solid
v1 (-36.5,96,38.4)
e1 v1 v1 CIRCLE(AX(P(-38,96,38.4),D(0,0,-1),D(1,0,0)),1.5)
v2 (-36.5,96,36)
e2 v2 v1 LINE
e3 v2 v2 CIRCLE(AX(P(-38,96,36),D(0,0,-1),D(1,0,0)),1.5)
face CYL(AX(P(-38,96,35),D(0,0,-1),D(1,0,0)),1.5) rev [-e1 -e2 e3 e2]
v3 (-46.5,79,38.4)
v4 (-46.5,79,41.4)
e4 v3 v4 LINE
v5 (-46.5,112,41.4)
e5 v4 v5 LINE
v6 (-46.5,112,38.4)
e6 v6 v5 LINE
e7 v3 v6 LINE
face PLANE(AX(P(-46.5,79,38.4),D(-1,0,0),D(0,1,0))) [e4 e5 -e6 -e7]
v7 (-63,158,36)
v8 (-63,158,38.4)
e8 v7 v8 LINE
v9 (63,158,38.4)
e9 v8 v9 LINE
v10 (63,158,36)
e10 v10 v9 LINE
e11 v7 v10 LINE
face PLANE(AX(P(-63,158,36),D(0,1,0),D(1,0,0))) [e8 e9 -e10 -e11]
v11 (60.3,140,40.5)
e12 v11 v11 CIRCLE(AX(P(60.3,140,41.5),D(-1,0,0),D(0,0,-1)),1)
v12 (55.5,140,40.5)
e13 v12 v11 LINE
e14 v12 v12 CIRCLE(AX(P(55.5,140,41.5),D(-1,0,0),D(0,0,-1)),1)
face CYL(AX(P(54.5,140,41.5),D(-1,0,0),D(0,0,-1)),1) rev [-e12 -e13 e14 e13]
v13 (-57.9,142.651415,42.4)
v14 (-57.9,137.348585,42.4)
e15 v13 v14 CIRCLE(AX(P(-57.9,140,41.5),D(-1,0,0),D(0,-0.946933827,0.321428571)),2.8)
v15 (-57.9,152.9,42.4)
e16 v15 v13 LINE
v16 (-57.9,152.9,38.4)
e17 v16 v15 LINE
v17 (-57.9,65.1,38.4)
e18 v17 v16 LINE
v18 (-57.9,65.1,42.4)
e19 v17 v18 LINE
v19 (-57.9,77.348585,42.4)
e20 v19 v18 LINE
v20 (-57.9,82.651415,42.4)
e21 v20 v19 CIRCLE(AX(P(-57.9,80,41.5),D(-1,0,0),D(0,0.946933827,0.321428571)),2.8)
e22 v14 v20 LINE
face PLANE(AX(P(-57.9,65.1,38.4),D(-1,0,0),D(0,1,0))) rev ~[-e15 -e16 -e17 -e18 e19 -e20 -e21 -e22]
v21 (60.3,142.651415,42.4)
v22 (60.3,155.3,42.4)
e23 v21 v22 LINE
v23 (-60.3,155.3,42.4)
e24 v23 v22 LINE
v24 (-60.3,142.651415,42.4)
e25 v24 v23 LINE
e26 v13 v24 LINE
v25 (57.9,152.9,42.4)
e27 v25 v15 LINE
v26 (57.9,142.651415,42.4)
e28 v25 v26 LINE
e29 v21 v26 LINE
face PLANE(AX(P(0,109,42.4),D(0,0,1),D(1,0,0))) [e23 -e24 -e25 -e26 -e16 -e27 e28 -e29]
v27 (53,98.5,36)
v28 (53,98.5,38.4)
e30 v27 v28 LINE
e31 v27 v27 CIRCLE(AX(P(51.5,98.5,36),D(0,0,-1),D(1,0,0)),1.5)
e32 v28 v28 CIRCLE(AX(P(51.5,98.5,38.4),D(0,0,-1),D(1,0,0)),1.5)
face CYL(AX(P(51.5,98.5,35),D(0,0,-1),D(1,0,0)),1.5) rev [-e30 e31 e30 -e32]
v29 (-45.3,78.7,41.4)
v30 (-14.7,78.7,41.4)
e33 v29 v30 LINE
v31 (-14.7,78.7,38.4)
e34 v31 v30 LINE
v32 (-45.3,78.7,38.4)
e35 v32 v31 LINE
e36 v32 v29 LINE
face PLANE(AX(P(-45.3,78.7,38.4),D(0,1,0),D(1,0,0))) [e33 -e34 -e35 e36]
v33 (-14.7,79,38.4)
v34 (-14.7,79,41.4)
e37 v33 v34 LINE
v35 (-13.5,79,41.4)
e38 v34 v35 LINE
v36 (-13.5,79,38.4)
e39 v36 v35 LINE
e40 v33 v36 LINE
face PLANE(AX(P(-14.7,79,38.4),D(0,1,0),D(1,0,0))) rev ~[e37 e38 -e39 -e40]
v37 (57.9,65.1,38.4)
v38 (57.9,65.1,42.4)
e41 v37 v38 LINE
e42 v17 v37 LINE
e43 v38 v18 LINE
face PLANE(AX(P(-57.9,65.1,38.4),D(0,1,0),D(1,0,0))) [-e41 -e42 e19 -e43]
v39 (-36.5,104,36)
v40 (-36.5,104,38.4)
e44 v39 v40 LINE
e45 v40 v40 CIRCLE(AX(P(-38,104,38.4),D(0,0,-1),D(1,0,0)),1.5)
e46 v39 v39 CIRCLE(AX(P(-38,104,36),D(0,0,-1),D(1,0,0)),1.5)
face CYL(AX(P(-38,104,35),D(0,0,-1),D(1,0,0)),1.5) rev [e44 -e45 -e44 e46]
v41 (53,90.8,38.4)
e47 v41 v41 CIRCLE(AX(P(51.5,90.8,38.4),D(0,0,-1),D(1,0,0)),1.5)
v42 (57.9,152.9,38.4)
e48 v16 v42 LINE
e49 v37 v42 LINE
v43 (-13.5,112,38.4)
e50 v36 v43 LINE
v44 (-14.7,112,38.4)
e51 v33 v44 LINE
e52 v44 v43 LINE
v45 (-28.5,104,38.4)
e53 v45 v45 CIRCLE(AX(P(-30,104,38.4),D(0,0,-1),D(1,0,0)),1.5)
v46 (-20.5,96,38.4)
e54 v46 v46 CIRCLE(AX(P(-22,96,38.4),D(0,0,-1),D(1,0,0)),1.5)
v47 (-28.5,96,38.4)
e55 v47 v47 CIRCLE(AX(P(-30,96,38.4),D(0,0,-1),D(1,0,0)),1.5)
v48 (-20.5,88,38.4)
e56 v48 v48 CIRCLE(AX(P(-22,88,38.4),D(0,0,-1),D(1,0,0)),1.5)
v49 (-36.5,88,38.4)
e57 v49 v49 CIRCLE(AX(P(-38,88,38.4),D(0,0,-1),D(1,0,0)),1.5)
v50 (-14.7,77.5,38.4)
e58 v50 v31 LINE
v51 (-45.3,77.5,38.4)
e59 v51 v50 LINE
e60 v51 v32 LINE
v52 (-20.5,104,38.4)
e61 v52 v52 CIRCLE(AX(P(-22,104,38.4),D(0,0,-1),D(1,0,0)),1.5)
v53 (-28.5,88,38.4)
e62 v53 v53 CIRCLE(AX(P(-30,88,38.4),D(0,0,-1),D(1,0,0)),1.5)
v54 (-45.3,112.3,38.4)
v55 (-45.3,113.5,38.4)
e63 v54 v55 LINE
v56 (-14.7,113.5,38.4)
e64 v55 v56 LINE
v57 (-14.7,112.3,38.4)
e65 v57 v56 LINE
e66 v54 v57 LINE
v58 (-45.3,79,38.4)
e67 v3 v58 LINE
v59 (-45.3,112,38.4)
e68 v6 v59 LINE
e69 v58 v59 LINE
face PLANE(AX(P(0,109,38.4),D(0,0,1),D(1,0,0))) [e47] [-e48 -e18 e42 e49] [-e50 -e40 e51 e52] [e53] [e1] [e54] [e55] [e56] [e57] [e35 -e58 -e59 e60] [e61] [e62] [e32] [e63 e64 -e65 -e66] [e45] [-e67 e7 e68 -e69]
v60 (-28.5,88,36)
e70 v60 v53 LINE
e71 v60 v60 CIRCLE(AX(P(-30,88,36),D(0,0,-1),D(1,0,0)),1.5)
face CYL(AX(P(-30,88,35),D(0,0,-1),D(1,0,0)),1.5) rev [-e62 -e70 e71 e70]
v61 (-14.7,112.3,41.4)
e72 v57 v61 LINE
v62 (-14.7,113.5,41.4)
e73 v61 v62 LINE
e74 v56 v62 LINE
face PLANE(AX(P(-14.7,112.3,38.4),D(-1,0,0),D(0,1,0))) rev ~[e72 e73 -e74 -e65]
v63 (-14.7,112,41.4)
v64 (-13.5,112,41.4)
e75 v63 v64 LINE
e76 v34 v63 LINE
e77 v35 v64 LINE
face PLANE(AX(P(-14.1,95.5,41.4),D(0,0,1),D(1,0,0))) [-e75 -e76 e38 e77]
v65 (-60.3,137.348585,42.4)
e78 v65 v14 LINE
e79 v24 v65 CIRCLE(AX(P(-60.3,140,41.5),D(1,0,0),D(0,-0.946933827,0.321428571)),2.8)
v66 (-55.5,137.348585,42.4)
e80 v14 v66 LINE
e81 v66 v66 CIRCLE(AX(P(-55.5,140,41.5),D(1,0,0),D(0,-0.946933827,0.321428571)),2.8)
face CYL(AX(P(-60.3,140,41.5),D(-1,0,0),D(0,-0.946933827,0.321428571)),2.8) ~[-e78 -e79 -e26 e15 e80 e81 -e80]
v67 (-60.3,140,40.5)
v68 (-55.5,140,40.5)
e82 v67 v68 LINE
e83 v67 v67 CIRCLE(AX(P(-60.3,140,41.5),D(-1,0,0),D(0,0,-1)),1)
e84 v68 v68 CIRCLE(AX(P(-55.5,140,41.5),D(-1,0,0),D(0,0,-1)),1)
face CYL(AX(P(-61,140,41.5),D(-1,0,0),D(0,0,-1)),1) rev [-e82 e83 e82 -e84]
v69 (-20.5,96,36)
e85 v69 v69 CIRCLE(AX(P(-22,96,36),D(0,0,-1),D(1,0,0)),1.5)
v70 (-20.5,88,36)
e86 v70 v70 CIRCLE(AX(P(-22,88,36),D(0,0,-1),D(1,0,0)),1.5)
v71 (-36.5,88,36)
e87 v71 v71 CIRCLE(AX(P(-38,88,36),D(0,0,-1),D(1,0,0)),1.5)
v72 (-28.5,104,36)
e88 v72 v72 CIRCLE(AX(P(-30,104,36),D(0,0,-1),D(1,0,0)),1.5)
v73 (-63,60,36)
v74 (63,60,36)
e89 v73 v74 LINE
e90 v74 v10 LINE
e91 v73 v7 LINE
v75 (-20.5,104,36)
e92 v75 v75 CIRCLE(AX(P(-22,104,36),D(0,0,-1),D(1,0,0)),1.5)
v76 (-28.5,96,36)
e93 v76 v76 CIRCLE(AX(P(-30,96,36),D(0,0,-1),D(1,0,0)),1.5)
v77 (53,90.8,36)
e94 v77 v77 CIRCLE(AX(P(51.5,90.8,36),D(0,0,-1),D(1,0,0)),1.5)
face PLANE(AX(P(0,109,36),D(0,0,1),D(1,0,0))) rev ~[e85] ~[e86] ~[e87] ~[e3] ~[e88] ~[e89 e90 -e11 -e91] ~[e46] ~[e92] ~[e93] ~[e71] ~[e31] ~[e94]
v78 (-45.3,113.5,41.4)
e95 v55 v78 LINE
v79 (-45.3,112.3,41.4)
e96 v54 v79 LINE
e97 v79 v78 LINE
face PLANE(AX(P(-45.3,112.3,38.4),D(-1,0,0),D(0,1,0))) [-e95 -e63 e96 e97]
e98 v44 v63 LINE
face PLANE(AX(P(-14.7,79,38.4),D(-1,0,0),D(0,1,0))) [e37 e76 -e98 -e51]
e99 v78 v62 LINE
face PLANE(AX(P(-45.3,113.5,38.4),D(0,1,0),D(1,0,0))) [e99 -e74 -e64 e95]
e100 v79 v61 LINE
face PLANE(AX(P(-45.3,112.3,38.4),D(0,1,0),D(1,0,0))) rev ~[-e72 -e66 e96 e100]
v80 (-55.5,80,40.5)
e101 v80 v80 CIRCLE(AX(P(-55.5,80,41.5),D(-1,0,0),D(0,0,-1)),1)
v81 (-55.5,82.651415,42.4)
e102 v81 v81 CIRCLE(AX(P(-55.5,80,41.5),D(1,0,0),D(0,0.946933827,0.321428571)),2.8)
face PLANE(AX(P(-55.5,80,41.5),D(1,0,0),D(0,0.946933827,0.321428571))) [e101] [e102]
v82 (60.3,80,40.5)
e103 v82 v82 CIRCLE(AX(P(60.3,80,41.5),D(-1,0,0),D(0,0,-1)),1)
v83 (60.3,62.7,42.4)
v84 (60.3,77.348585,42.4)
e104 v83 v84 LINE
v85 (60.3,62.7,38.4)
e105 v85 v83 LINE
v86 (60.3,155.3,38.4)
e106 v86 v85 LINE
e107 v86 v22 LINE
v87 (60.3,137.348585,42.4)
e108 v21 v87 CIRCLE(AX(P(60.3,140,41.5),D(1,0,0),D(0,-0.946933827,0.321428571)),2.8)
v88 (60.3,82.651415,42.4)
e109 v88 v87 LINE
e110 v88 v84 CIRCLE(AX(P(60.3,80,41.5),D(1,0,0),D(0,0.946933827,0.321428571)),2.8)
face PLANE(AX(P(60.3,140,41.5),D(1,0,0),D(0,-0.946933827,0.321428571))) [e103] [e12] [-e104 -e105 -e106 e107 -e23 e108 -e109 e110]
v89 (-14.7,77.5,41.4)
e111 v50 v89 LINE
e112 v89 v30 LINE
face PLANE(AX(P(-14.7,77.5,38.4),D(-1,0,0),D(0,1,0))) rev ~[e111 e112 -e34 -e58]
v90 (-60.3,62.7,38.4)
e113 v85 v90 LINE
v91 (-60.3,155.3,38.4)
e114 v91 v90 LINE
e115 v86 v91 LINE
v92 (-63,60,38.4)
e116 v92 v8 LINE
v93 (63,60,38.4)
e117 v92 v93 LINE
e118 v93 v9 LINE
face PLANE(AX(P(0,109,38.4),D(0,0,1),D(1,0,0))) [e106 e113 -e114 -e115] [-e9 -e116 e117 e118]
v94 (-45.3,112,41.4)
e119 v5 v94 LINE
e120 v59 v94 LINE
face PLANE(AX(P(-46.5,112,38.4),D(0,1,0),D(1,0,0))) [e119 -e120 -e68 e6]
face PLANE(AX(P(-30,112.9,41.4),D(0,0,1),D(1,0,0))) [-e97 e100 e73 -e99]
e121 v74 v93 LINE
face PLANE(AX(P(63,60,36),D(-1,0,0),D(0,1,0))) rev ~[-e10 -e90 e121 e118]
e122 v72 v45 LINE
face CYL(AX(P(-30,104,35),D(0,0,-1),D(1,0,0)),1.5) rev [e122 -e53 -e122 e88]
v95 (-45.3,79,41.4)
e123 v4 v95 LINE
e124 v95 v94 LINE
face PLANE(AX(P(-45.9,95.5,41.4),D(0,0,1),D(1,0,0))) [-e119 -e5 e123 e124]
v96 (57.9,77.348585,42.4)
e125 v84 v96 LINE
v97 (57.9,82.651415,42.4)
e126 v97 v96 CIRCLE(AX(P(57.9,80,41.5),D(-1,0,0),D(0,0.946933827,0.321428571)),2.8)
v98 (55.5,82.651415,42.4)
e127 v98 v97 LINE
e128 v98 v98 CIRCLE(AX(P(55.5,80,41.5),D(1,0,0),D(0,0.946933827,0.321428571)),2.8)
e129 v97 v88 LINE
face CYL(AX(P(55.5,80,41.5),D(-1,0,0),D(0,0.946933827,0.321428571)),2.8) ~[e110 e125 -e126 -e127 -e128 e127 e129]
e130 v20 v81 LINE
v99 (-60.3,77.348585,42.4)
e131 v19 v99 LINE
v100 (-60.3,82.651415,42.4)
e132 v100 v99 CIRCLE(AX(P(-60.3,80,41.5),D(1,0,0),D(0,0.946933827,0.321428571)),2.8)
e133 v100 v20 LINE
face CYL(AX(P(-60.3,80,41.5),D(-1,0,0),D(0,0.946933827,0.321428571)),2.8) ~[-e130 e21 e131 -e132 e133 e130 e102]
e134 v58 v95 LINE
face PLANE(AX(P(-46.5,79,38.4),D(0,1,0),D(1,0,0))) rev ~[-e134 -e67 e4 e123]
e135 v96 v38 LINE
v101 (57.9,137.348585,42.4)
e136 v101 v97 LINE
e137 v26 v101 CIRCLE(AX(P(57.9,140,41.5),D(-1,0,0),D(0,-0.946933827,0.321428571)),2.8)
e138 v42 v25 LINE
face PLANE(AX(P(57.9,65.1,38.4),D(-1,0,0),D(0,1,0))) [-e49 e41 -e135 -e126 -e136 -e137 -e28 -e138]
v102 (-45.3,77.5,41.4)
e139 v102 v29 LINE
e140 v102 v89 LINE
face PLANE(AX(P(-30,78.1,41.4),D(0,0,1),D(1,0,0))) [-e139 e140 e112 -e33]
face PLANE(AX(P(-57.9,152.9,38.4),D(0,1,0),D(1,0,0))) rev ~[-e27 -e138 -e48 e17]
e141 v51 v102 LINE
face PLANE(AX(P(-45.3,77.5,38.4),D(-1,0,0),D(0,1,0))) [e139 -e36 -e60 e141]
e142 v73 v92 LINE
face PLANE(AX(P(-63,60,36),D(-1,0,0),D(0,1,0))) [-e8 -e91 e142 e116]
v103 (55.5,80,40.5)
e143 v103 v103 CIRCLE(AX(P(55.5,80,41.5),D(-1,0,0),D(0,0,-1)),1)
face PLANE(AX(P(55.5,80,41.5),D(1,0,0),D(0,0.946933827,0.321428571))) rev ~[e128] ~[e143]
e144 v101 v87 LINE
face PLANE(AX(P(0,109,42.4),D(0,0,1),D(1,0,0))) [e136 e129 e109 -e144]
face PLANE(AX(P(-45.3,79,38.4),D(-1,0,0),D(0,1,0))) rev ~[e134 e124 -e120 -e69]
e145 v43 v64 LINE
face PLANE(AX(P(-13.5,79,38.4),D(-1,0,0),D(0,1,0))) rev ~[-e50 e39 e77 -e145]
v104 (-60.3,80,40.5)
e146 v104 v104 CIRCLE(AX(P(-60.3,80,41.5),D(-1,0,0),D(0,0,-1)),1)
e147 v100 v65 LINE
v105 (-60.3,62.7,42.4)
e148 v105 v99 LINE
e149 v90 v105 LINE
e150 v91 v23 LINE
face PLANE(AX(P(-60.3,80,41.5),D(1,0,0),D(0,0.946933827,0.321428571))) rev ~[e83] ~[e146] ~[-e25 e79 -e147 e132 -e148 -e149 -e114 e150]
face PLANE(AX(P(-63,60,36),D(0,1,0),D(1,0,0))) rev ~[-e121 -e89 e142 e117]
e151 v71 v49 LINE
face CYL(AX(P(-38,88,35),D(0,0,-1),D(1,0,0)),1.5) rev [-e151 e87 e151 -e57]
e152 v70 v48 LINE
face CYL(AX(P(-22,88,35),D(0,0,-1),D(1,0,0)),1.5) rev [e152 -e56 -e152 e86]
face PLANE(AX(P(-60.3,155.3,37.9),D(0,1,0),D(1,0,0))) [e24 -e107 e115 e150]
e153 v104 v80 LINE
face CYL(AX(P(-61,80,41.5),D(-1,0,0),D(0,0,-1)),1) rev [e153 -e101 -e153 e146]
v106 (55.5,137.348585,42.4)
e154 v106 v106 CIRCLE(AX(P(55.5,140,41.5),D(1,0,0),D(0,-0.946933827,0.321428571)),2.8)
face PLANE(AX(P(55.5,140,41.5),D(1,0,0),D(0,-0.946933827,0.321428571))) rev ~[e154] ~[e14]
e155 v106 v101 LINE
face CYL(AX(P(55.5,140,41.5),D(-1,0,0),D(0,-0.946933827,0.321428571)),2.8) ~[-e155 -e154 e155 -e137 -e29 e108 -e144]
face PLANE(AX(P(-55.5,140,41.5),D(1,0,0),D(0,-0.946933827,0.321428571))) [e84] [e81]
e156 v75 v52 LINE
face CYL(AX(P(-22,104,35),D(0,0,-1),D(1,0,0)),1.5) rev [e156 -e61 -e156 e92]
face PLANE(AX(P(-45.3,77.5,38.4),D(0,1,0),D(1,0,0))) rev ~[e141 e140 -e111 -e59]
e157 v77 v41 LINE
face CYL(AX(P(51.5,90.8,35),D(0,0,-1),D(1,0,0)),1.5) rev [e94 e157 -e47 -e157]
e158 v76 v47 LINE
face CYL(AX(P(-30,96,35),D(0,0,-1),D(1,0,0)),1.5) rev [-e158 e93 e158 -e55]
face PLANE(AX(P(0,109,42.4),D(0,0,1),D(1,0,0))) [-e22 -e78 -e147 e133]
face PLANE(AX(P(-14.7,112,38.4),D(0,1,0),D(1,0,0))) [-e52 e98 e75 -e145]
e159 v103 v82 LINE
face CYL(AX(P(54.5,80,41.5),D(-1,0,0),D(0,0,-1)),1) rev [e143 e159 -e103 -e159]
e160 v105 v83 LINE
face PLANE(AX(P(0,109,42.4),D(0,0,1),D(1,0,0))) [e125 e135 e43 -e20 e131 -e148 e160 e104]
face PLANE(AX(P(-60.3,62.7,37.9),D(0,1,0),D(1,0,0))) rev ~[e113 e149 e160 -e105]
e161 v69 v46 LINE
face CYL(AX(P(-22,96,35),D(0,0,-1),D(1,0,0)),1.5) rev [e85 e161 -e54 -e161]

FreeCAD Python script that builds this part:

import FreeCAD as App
import Part
import Sketcher

V = App.Vector

doc = App.newDocument("Part")
body = doc.addObject("PartDesign::Body", "Body")

# Sketch on XY plane
sketch1 = body.newObject("Sketcher::SketchObject", "Sketch")
sketch1.AttachmentSupport = (doc.getObject("XY_Plane"), [""])
sketch1.MapMode = "FlatFace"
sketch1.AttachmentOffset = App.Placement(V(0, 0, 36), App.Rotation())
sketch1.addGeometry([
    Part.LineSegment(V(-63, 158, 0), V(-63, 60, 0)),
    Part.LineSegment(V(-63, 60, 0), V(63, 60, 0)),
    Part.LineSegment(V(63, 60, 0), V(63, 158, 0)),
    Part.LineSegment(V(63, 158, 0), V(-63, 158, 0)),
], False)
sketch1.addConstraint([
    Sketcher.Constraint("Coincident", 0, 2, 1, 1),
    Sketcher.Constraint("Coincident", 1, 2, 2, 1),
    Sketcher.Constraint("Coincident", 2, 2, 3, 1),
    Sketcher.Constraint("Coincident", 3, 2, 0, 1),
    Sketcher.Constraint("Vertical", 0),
    Sketcher.Constraint("Horizontal", 1),
    Sketcher.Constraint("Vertical", 2),
    Sketcher.Constraint("Horizontal", 3),
    Sketcher.Constraint("DistanceX", 1, 1, 1, 2, 126.0),
    Sketcher.Constraint("DistanceY", 0, 2, 0, 1, 98.0),
    Sketcher.Constraint("DistanceX", 0, 2, -1, 1, 63.0),
    Sketcher.Constraint("DistanceY", -1, 1, 0, 2, 60.0),
])
pad1 = body.newObject("PartDesign::Pad", "Pad")
pad1.Profile = sketch1
pad1.Length = 2.4

# Sketch on XY plane
sketch2 = body.newObject("Sketcher::SketchObject", "Sketch001")
sketch2.AttachmentSupport = (doc.getObject("XY_Plane"), [""])
sketch2.MapMode = "FlatFace"
sketch2.AttachmentOffset = App.Placement(V(0, 0, 37.9), App.Rotation())
sketch2.addGeometry([
    Part.LineSegment(V(-60.3, 155.3, 0), V(-60.3, 62.7, 0)),
    Part.LineSegment(V(-60.3, 62.7, 0), V(60.3, 62.7, 0)),
    Part.LineSegment(V(60.3, 62.7, 0), V(60.3, 155.3, 0)),
    Part.LineSegment(V(60.3, 155.3, 0), V(-60.3, 155.3, 0)),
], False)
sketch2.addConstraint([
    Sketcher.Constraint("Coincident", 0, 2, 1, 1),
    Sketcher.Constraint("Coincident", 1, 2, 2, 1),
    Sketcher.Constraint("Coincident", 2, 2, 3, 1),
    Sketcher.Constraint("Coincident", 3, 2, 0, 1),
    Sketcher.Constraint("Vertical", 0),
    Sketcher.Constraint("Horizontal", 1),
    Sketcher.Constraint("Vertical", 2),
    Sketcher.Constraint("Horizontal", 3),
    Sketcher.Constraint("DistanceX", 1, 1, 1, 2, 120.6),
    Sketcher.Constraint("DistanceY", 0, 2, 0, 1, 92.6),
    Sketcher.Constraint("DistanceX", 0, 2, -1, 1, 60.3),
    Sketcher.Constraint("DistanceY", -1, 1, 0, 2, 62.7),
])
pad2 = body.newObject("PartDesign::Pad", "Pad001")
pad2.Profile = sketch2
pad2.Length = 4.5
body2 = doc.addObject("PartDesign::Body", "Body001")

# Sketch on XY plane
sketch3 = body2.newObject("Sketcher::SketchObject", "Sketch002")
sketch3.AttachmentSupport = (doc.getObject("XY_Plane001"), [""])
sketch3.MapMode = "FlatFace"
sketch3.AttachmentOffset = App.Placement(V(0, 0, 38.4), App.Rotation())
sketch3.addGeometry([
    Part.LineSegment(V(-57.9, 152.9, 0), V(-57.9, 65.1, 0)),
    Part.LineSegment(V(-57.9, 65.1, 0), V(57.9, 65.1, 0)),
    Part.LineSegment(V(57.9, 65.1, 0), V(57.9, 152.9, 0)),
    Part.LineSegment(V(57.9, 152.9, 0), V(-57.9, 152.9, 0)),
], False)
sketch3.addConstraint([
    Sketcher.Constraint("Coincident", 0, 2, 1, 1),
    Sketcher.Constraint("Coincident", 1, 2, 2, 1),
    Sketcher.Constraint("Coincident", 2, 2, 3, 1),
    Sketcher.Constraint("Coincident", 3, 2, 0, 1),
    Sketcher.Constraint("Vertical", 0),
    Sketcher.Constraint("Horizontal", 1),
    Sketcher.Constraint("Vertical", 2),
    Sketcher.Constraint("Horizontal", 3),
    Sketcher.Constraint("DistanceX", 1, 1, 1, 2, 115.8),
    Sketcher.Constraint("DistanceY", 0, 2, 0, 1, 87.8),
    Sketcher.Constraint("DistanceX", 0, 2, -1, 1, 57.9),
    Sketcher.Constraint("DistanceY", -1, 1, 0, 2, 65.1),
])
pad3 = body2.newObject("PartDesign::Pad", "Pad002")
pad3.Profile = sketch3
pad3.Length = 5
doc.recompute()

boolean = body.newObject("PartDesign::Boolean", "Boolean")
boolean.Type = "Cut"
boolean.addObjects([body2])

# Sketch on YZ plane
sketch4 = body.newObject("Sketcher::SketchObject", "Sketch003")
sketch4.AttachmentSupport = (doc.getObject("YZ_Plane"), [""])
sketch4.MapMode = "FlatFace"
sketch4.AttachmentOffset = App.Placement(V(0, 0, -60.3), App.Rotation())
sketch4.addGeometry(Part.Circle(V(80, 41.5, 0), V(0, 0, 1), 2.8), False)
sketch4.addConstraint([
    Sketcher.Constraint("Diameter", 0, 5.6),
    Sketcher.Constraint("DistanceX", -1, 1, 0, 3, 80.0),
    Sketcher.Constraint("DistanceY", -1, 1, 0, 3, 41.5),
])
pad4 = body.newObject("PartDesign::Pad", "Pad003")
pad4.Profile = sketch4
pad4.Length = 4.8
body3 = doc.addObject("PartDesign::Body", "Body002")

# Sketch on YZ plane
sketch5 = body3.newObject("Sketcher::SketchObject", "Sketch004")
sketch5.AttachmentSupport = (doc.getObject("YZ_Plane002"), [""])
sketch5.MapMode = "FlatFace"
sketch5.AttachmentOffset = App.Placement(V(0, 0, -61), App.Rotation())
sketch5.addGeometry(Part.Circle(V(80, 41.5, 0), V(0, 0, 1), 1), False)
sketch5.addConstraint([
    Sketcher.Constraint("Diameter", 0, 2.0),
    Sketcher.Constraint("DistanceX", -1, 1, 0, 3, 80.0),
    Sketcher.Constraint("DistanceY", -1, 1, 0, 3, 41.5),
])
pad5 = body3.newObject("PartDesign::Pad", "Pad004")
pad5.Profile = sketch5
pad5.Length = 6.5
doc.recompute()

boolean2 = body.newObject("PartDesign::Boolean", "Boolean001")
boolean2.Type = "Cut"
boolean2.addObjects([body3])

# Sketch on YZ plane
sketch6 = body.newObject("Sketcher::SketchObject", "Sketch005")
sketch6.AttachmentSupport = (doc.getObject("YZ_Plane"), [""])
sketch6.MapMode = "FlatFace"
sketch6.AttachmentOffset = App.Placement(V(0, 0, -60.3), App.Rotation())
sketch6.addGeometry(Part.Circle(V(140, 41.5, 0), V(0, 0, 1), 2.8), False)
sketch6.addConstraint([
    Sketcher.Constraint("Diameter", 0, 5.6),
    Sketcher.Constraint("DistanceX", -1, 1, 0, 3, 140.0),
    Sketcher.Constraint("DistanceY", -1, 1, 0, 3, 41.5),
])
pad6 = body.newObject("PartDesign::Pad", "Pad005")
pad6.Profile = sketch6
pad6.Length = 4.8
body4 = doc.addObject("PartDesign::Body", "Body003")

# Sketch on YZ plane
sketch7 = body4.newObject("Sketcher::SketchObject", "Sketch006")
sketch7.AttachmentSupport = (doc.getObject("YZ_Plane003"), [""])
sketch7.MapMode = "FlatFace"
sketch7.AttachmentOffset = App.Placement(V(0, 0, -61), App.Rotation())
sketch7.addGeometry(Part.Circle(V(140, 41.5, 0), V(0, 0, 1), 1), False)
sketch7.addConstraint([
    Sketcher.Constraint("Diameter", 0, 2.0),
    Sketcher.Constraint("DistanceX", -1, 1, 0, 3, 140.0),
    Sketcher.Constraint("DistanceY", -1, 1, 0, 3, 41.5),
])
pad7 = body4.newObject("PartDesign::Pad", "Pad006")
pad7.Profile = sketch7
pad7.Length = 6.5
doc.recompute()

boolean3 = body.newObject("PartDesign::Boolean", "Boolean002")
boolean3.Type = "Cut"
boolean3.addObjects([body4])

# Sketch on YZ plane
sketch8 = body.newObject("Sketcher::SketchObject", "Sketch007")
sketch8.AttachmentSupport = (doc.getObject("YZ_Plane"), [""])
sketch8.MapMode = "FlatFace"
sketch8.AttachmentOffset = App.Placement(V(0, 0, 55.5), App.Rotation())
sketch8.addGeometry(Part.Circle(V(80, 41.5, 0), V(0, 0, 1), 2.8), False)
sketch8.addConstraint([
    Sketcher.Constraint("Diameter", 0, 5.6),
    Sketcher.Constraint("DistanceX", -1, 1, 0, 3, 80.0),
    Sketcher.Constraint("DistanceY", -1, 1, 0, 3, 41.5),
])
pad8 = body.newObject("PartDesign::Pad", "Pad007")
pad8.Profile = sketch8
pad8.Length = 4.8
body5 = doc.addObject("PartDesign::Body", "Body004")

# Sketch on YZ plane
sketch9 = body5.newObject("Sketcher::SketchObject", "Sketch008")
sketch9.AttachmentSupport = (doc.getObject("YZ_Plane004"), [""])
sketch9.MapMode = "FlatFace"
sketch9.AttachmentOffset = App.Placement(V(0, 0, 54.5), App.Rotation())
sketch9.addGeometry(Part.Circle(V(80, 41.5, 0), V(0, 0, 1), 1), False)
sketch9.addConstraint([
    Sketcher.Constraint("Diameter", 0, 2.0),
    Sketcher.Constraint("DistanceX", -1, 1, 0, 3, 80.0),
    Sketcher.Constraint("DistanceY", -1, 1, 0, 3, 41.5),
])
pad9 = body5.newObject("PartDesign::Pad", "Pad008")
pad9.Profile = sketch9
pad9.Length = 6.5
doc.recompute()

boolean4 = body.newObject("PartDesign::Boolean", "Boolean003")
boolean4.Type = "Cut"
boolean4.addObjects([body5])

# Sketch on YZ plane
sketch10 = body.newObject("Sketcher::SketchObject", "Sketch009")
sketch10.AttachmentSupport = (doc.getObject("YZ_Plane"), [""])
sketch10.MapMode = "FlatFace"
sketch10.AttachmentOffset = App.Placement(V(0, 0, 55.5), App.Rotation())
sketch10.addGeometry(Part.Circle(V(140, 41.5, 0), V(0, 0, 1), 2.8), False)
sketch10.addConstraint([
    Sketcher.Constraint("Diameter", 0, 5.6),
    Sketcher.Constraint("DistanceX", -1, 1, 0, 3, 140.0),
    Sketcher.Constraint("DistanceY", -1, 1, 0, 3, 41.5),
])
pad10 = body.newObject("PartDesign::Pad", "Pad009")
pad10.Profile = sketch10
pad10.Length = 4.8
body6 = doc.addObject("PartDesign::Body", "Body005")

# Sketch on YZ plane
sketch11 = body6.newObject("Sketcher::SketchObject", "Sketch010")
sketch11.AttachmentSupport = (doc.getObject("YZ_Plane005"), [""])
sketch11.MapMode = "FlatFace"
sketch11.AttachmentOffset = App.Placement(V(0, 0, 54.5), App.Rotation())
sketch11.addGeometry(Part.Circle(V(140, 41.5, 0), V(0, 0, 1), 1), False)
sketch11.addConstraint([
    Sketcher.Constraint("Diameter", 0, 2.0),
    Sketcher.Constraint("DistanceX", -1, 1, 0, 3, 140.0),
    Sketcher.Constraint("DistanceY", -1, 1, 0, 3, 41.5),
])
pad11 = body6.newObject("PartDesign::Pad", "Pad010")
pad11.Profile = sketch11
pad11.Length = 6.5
doc.recompute()

boolean5 = body.newObject("PartDesign::Boolean", "Boolean004")
boolean5.Type = "Cut"
boolean5.addObjects([body6])
body7 = doc.addObject("PartDesign::Body", "Body006")

# Sketch on XY plane
sketch12 = body7.newObject("Sketcher::SketchObject", "Sketch011")
sketch12.AttachmentSupport = (doc.getObject("XY_Plane006"), [""])
sketch12.MapMode = "FlatFace"
sketch12.AttachmentOffset = App.Placement(V(0, 0, 35), App.Rotation())
sketch12.addGeometry(Part.Circle(V(-38, 88, 0), V(0, 0, 1), 1.5), False)
sketch12.addConstraint([
    Sketcher.Constraint("Diameter", 0, 3.0),
    Sketcher.Constraint("DistanceX", 0, 3, -1, 1, 38.0),
    Sketcher.Constraint("DistanceY", -1, 1, 0, 3, 88.0),
])
pad12 = body7.newObject("PartDesign::Pad", "Pad011")
pad12.Profile = sketch12
pad12.Length = 4.4
doc.recompute()

boolean6 = body.newObject("PartDesign::Boolean", "Boolean005")
boolean6.Type = "Cut"
boolean6.addObjects([body7])
body8 = doc.addObject("PartDesign::Body", "Body007")

# Sketch on XY plane
sketch13 = body8.newObject("Sketcher::SketchObject", "Sketch012")
sketch13.AttachmentSupport = (doc.getObject("XY_Plane007"), [""])
sketch13.MapMode = "FlatFace"
sketch13.AttachmentOffset = App.Placement(V(0, 0, 35), App.Rotation())
sketch13.addGeometry(Part.Circle(V(-38, 96, 0), V(0, 0, 1), 1.5), False)
sketch13.addConstraint([
    Sketcher.Constraint("Diameter", 0, 3.0),
    Sketcher.Constraint("DistanceX", 0, 3, -1, 1, 38.0),
    Sketcher.Constraint("DistanceY", -1, 1, 0, 3, 96.0),
])
pad13 = body8.newObject("PartDesign::Pad", "Pad012")
pad13.Profile = sketch13
pad13.Length = 4.4
doc.recompute()

boolean7 = body.newObject("PartDesign::Boolean", "Boolean006")
boolean7.Type = "Cut"
boolean7.addObjects([body8])
body9 = doc.addObject("PartDesign::Body", "Body008")

# Sketch on XY plane
sketch14 = body9.newObject("Sketcher::SketchObject", "Sketch013")
sketch14.AttachmentSupport = (doc.getObject("XY_Plane008"), [""])
sketch14.MapMode = "FlatFace"
sketch14.AttachmentOffset = App.Placement(V(0, 0, 35), App.Rotation())
sketch14.addGeometry(Part.Circle(V(-38, 104, 0), V(0, 0, 1), 1.5), False)
sketch14.addConstraint([
    Sketcher.Constraint("Diameter", 0, 3.0),
    Sketcher.Constraint("DistanceX", 0, 3, -1, 1, 38.0),
    Sketcher.Constraint("DistanceY", -1, 1, 0, 3, 104.0),
])
pad14 = body9.newObject("PartDesign::Pad", "Pad013")
pad14.Profile = sketch14
pad14.Length = 4.4
doc.recompute()

boolean8 = body.newObject("PartDesign::Boolean", "Boolean007")
boolean8.Type = "Cut"
boolean8.addObjects([body9])
body10 = doc.addObject("PartDesign::Body", "Body009")

# Sketch on XY plane
sketch15 = body10.newObject("Sketcher::SketchObject", "Sketch014")
sketch15.AttachmentSupport = (doc.getObject("XY_Plane009"), [""])
sketch15.MapMode = "FlatFace"
sketch15.AttachmentOffset = App.Placement(V(0, 0, 35), App.Rotation())
sketch15.addGeometry(Part.Circle(V(-30, 88, 0), V(0, 0, 1), 1.5), False)
sketch15.addConstraint([
    Sketcher.Constraint("Diameter", 0, 3.0),
    Sketcher.Constraint("DistanceX", 0, 3, -1, 1, 30.0),
    Sketcher.Constraint("DistanceY", -1, 1, 0, 3, 88.0),
])
pad15 = body10.newObject("PartDesign::Pad", "Pad014")
pad15.Profile = sketch15
pad15.Length = 4.4
doc.recompute()

boolean9 = body.newObject("PartDesign::Boolean", "Boolean008")
boolean9.Type = "Cut"
boolean9.addObjects([body10])
body11 = doc.addObject("PartDesign::Body", "Body010")

# Sketch on XY plane
sketch16 = body11.newObject("Sketcher::SketchObject", "Sketch015")
sketch16.AttachmentSupport = (doc.getObject("XY_Plane010"), [""])
sketch16.MapMode = "FlatFace"
sketch16.AttachmentOffset = App.Placement(V(0, 0, 35), App.Rotation())
sketch16.addGeometry(Part.Circle(V(-30, 96, 0), V(0, 0, 1), 1.5), False)
sketch16.addConstraint([
    Sketcher.Constraint("Diameter", 0, 3.0),
    Sketcher.Constraint("DistanceX", 0, 3, -1, 1, 30.0),
    Sketcher.Constraint("DistanceY", -1, 1, 0, 3, 96.0),
])
pad16 = body11.newObject("PartDesign::Pad", "Pad015")
pad16.Profile = sketch16
pad16.Length = 4.4
doc.recompute()

boolean10 = body.newObject("PartDesign::Boolean", "Boolean009")
boolean10.Type = "Cut"
boolean10.addObjects([body11])
body12 = doc.addObject("PartDesign::Body", "Body011")

# Sketch on XY plane
sketch17 = body12.newObject("Sketcher::SketchObject", "Sketch016")
sketch17.AttachmentSupport = (doc.getObject("XY_Plane011"), [""])
sketch17.MapMode = "FlatFace"
sketch17.AttachmentOffset = App.Placement(V(0, 0, 35), App.Rotation())
sketch17.addGeometry(Part.Circle(V(-30, 104, 0), V(0, 0, 1), 1.5), False)
sketch17.addConstraint([
    Sketcher.Constraint("Diameter", 0, 3.0),
    Sketcher.Constraint("DistanceX", 0, 3, -1, 1, 30.0),
    Sketcher.Constraint("DistanceY", -1, 1, 0, 3, 104.0),
])
pad17 = body12.newObject("PartDesign::Pad", "Pad016")
pad17.Profile = sketch17
pad17.Length = 4.4
doc.recompute()

boolean11 = body.newObject("PartDesign::Boolean", "Boolean010")
boolean11.Type = "Cut"
boolean11.addObjects([body12])
body13 = doc.addObject("PartDesign::Body", "Body012")

# Sketch on XY plane
sketch18 = body13.newObject("Sketcher::SketchObject", "Sketch017")
sketch18.AttachmentSupport = (doc.getObject("XY_Plane012"), [""])
sketch18.MapMode = "FlatFace"
sketch18.AttachmentOffset = App.Placement(V(0, 0, 35), App.Rotation())
sketch18.addGeometry(Part.Circle(V(-22, 88, 0), V(0, 0, 1), 1.5), False)
sketch18.addConstraint([
    Sketcher.Constraint("Diameter", 0, 3.0),
    Sketcher.Constraint("DistanceX", 0, 3, -1, 1, 22.0),
    Sketcher.Constraint("DistanceY", -1, 1, 0, 3, 88.0),
])
pad18 = body13.newObject("PartDesign::Pad", "Pad017")
pad18.Profile = sketch18
pad18.Length = 4.4
doc.recompute()

boolean12 = body.newObject("PartDesign::Boolean", "Boolean011")
boolean12.Type = "Cut"
boolean12.addObjects([body13])
body14 = doc.addObject("PartDesign::Body", "Body013")

# Sketch on XY plane
sketch19 = body14.newObject("Sketcher::SketchObject", "Sketch018")
sketch19.AttachmentSupport = (doc.getObject("XY_Plane013"), [""])
sketch19.MapMode = "FlatFace"
sketch19.AttachmentOffset = App.Placement(V(0, 0, 35), App.Rotation())
sketch19.addGeometry(Part.Circle(V(-22, 96, 0), V(0, 0, 1), 1.5), False)
sketch19.addConstraint([
    Sketcher.Constraint("Diameter", 0, 3.0),
    Sketcher.Constraint("DistanceX", 0, 3, -1, 1, 22.0),
    Sketcher.Constraint("DistanceY", -1, 1, 0, 3, 96.0),
])
pad19 = body14.newObject("PartDesign::Pad", "Pad018")
pad19.Profile = sketch19
pad19.Length = 4.4
doc.recompute()

boolean13 = body.newObject("PartDesign::Boolean", "Boolean012")
boolean13.Type = "Cut"
boolean13.addObjects([body14])
body15 = doc.addObject("PartDesign::Body", "Body014")

# Sketch on XY plane
sketch20 = body15.newObject("Sketcher::SketchObject", "Sketch019")
sketch20.AttachmentSupport = (doc.getObject("XY_Plane014"), [""])
sketch20.MapMode = "FlatFace"
sketch20.AttachmentOffset = App.Placement(V(0, 0, 35), App.Rotation())
sketch20.addGeometry(Part.Circle(V(-22, 104, 0), V(0, 0, 1), 1.5), False)
sketch20.addConstraint([
    Sketcher.Constraint("Diameter", 0, 3.0),
    Sketcher.Constraint("DistanceX", 0, 3, -1, 1, 22.0),
    Sketcher.Constraint("DistanceY", -1, 1, 0, 3, 104.0),
])
pad20 = body15.newObject("PartDesign::Pad", "Pad019")
pad20.Profile = sketch20
pad20.Length = 4.4
doc.recompute()

boolean14 = body.newObject("PartDesign::Boolean", "Boolean013")
boolean14.Type = "Cut"
boolean14.addObjects([body15])

# Sketch on XY plane
sketch21 = body.newObject("Sketcher::SketchObject", "Sketch020")
sketch21.AttachmentSupport = (doc.getObject("XY_Plane"), [""])
sketch21.MapMode = "FlatFace"
sketch21.AttachmentOffset = App.Placement(V(0, 0, 38.4), App.Rotation())
sketch21.addGeometry([
    Part.LineSegment(V(-46.5, 112, 0), V(-46.5, 79, 0)),
    Part.LineSegment(V(-46.5, 79, 0), V(-45.3, 79, 0)),
    Part.LineSegment(V(-45.3, 79, 0), V(-45.3, 112, 0)),
    Part.LineSegment(V(-45.3, 112, 0), V(-46.5, 112, 0)),
], False)
sketch21.addConstraint([
    Sketcher.Constraint("Coincident", 0, 2, 1, 1),
    Sketcher.Constraint("Coincident", 1, 2, 2, 1),
    Sketcher.Constraint("Coincident", 2, 2, 3, 1),
    Sketcher.Constraint("Coincident", 3, 2, 0, 1),
    Sketcher.Constraint("Vertical", 0),
    Sketcher.Constraint("Horizontal", 1),
    Sketcher.Constraint("Vertical", 2),
    Sketcher.Constraint("Horizontal", 3),
    Sketcher.Constraint("DistanceY", 0, 2, 0, 1, 33.0),
    Sketcher.Constraint("DistanceX", 1, 1, 1, 2, 1.2),
    Sketcher.Constraint("DistanceY", -1, 1, 0, 2, 79.0),
    Sketcher.Constraint("DistanceX", 0, 2, -1, 1, 46.5),
])
pad21 = body.newObject("PartDesign::Pad", "Pad020")
pad21.Profile = sketch21
pad21.Length = 3

# Sketch on XY plane
sketch22 = body.newObject("Sketcher::SketchObject", "Sketch021")
sketch22.AttachmentSupport = (doc.getObject("XY_Plane"), [""])
sketch22.MapMode = "FlatFace"
sketch22.AttachmentOffset = App.Placement(V(0, 0, 38.4), App.Rotation())
sketch22.addGeometry([
    Part.LineSegment(V(-14.7, 112, 0), V(-14.7, 79, 0)),
    Part.LineSegment(V(-14.7, 79, 0), V(-13.5, 79, 0)),
    Part.LineSegment(V(-13.5, 79, 0), V(-13.5, 112, 0)),
    Part.LineSegment(V(-13.5, 112, 0), V(-14.7, 112, 0)),
], False)
sketch22.addConstraint([
    Sketcher.Constraint("Coincident", 0, 2, 1, 1),
    Sketcher.Constraint("Coincident", 1, 2, 2, 1),
    Sketcher.Constraint("Coincident", 2, 2, 3, 1),
    Sketcher.Constraint("Coincident", 3, 2, 0, 1),
    Sketcher.Constraint("Vertical", 0),
    Sketcher.Constraint("Horizontal", 1),
    Sketcher.Constraint("Vertical", 2),
    Sketcher.Constraint("Horizontal", 3),
    Sketcher.Constraint("DistanceY", 0, 2, 0, 1, 33.0),
    Sketcher.Constraint("DistanceX", 1, 1, 1, 2, 1.2),
    Sketcher.Constraint("DistanceY", -1, 1, 0, 2, 79.0),
    Sketcher.Constraint("DistanceX", 0, 2, -1, 1, 14.7),
])
pad22 = body.newObject("PartDesign::Pad", "Pad021")
pad22.Profile = sketch22
pad22.Length = 3

# Sketch on XY plane
sketch23 = body.newObject("Sketcher::SketchObject", "Sketch022")
sketch23.AttachmentSupport = (doc.getObject("XY_Plane"), [""])
sketch23.MapMode = "FlatFace"
sketch23.AttachmentOffset = App.Placement(V(0, 0, 38.4), App.Rotation())
sketch23.addGeometry([
    Part.LineSegment(V(-45.3, 113.5, 0), V(-45.3, 112.3, 0)),
    Part.LineSegment(V(-45.3, 112.3, 0), V(-14.7, 112.3, 0)),
    Part.LineSegment(V(-14.7, 112.3, 0), V(-14.7, 113.5, 0)),
    Part.LineSegment(V(-14.7, 113.5, 0), V(-45.3, 113.5, 0)),
], False)
sketch23.addConstraint([
    Sketcher.Constraint("Coincident", 0, 2, 1, 1),
    Sketcher.Constraint("Coincident", 1, 2, 2, 1),
    Sketcher.Constraint("Coincident", 2, 2, 3, 1),
    Sketcher.Constraint("Coincident", 3, 2, 0, 1),
    Sketcher.Constraint("Vertical", 0),
    Sketcher.Constraint("Horizontal", 1),
    Sketcher.Constraint("Vertical", 2),
    Sketcher.Constraint("Horizontal", 3),
    Sketcher.Constraint("DistanceX", 1, 1, 1, 2, 30.6),
    Sketcher.Constraint("DistanceY", 0, 2, 0, 1, 1.2),
    Sketcher.Constraint("DistanceX", 0, 2, -1, 1, 45.3),
    Sketcher.Constraint("DistanceY", -1, 1, 0, 2, 112.3),
])
pad23 = body.newObject("PartDesign::Pad", "Pad022")
pad23.Profile = sketch23
pad23.Length = 3

# Sketch on XY plane
sketch24 = body.newObject("Sketcher::SketchObject", "Sketch023")
sketch24.AttachmentSupport = (doc.getObject("XY_Plane"), [""])
sketch24.MapMode = "FlatFace"
sketch24.AttachmentOffset = App.Placement(V(0, 0, 38.4), App.Rotation())
sketch24.addGeometry([
    Part.LineSegment(V(-45.3, 78.7, 0), V(-45.3, 77.5, 0)),
    Part.LineSegment(V(-45.3, 77.5, 0), V(-14.7, 77.5, 0)),
    Part.LineSegment(V(-14.7, 77.5, 0), V(-14.7, 78.7, 0)),
    Part.LineSegment(V(-14.7, 78.7, 0), V(-45.3, 78.7, 0)),
], False)
sketch24.addConstraint([
    Sketcher.Constraint("Coincident", 0, 2, 1, 1),
    Sketcher.Constraint("Coincident", 1, 2, 2, 1),
    Sketcher.Constraint("Coincident", 2, 2, 3, 1),
    Sketcher.Constraint("Coincident", 3, 2, 0, 1),
    Sketcher.Constraint("Vertical", 0),
    Sketcher.Constraint("Horizontal", 1),
    Sketcher.Constraint("Vertical", 2),
    Sketcher.Constraint("Horizontal", 3),
    Sketcher.Constraint("DistanceX", 1, 1, 1, 2, 30.6),
    Sketcher.Constraint("DistanceY", 0, 2, 0, 1, 1.2),
    Sketcher.Constraint("DistanceX", 0, 2, -1, 1, 45.3),
    Sketcher.Constraint("DistanceY", -1, 1, 0, 2, 77.5),
])
pad24 = body.newObject("PartDesign::Pad", "Pad023")
pad24.Profile = sketch24
pad24.Length = 3
body16 = doc.addObject("PartDesign::Body", "Body015")

# Sketch on XY plane
sketch25 = body16.newObject("Sketcher::SketchObject", "Sketch024")
sketch25.AttachmentSupport = (doc.getObject("XY_Plane015"), [""])
sketch25.MapMode = "FlatFace"
sketch25.AttachmentOffset = App.Placement(V(0, 0, 35), App.Rotation())
sketch25.addGeometry(Part.Circle(V(51.5, 98.5, 0), V(0, 0, 1), 1.5), False)
sketch25.addConstraint([
    Sketcher.Constraint("Diameter", 0, 3.0),
    Sketcher.Constraint("DistanceX", -1, 1, 0, 3, 51.5),
    Sketcher.Constraint("DistanceY", -1, 1, 0, 3, 98.5),
])
pad25 = body16.newObject("PartDesign::Pad", "Pad024")
pad25.Profile = sketch25
pad25.Length = 4.4
doc.recompute()

boolean15 = body.newObject("PartDesign::Boolean", "Boolean014")
boolean15.Type = "Cut"
boolean15.addObjects([body16])
body17 = doc.addObject("PartDesign::Body", "Body016")

# Sketch on XY plane
sketch26 = body17.newObject("Sketcher::SketchObject", "Sketch025")
sketch26.AttachmentSupport = (doc.getObject("XY_Plane016"), [""])
sketch26.MapMode = "FlatFace"
sketch26.AttachmentOffset = App.Placement(V(0, 0, 35), App.Rotation())
sketch26.addGeometry(Part.Circle(V(51.5, 90.8, 0), V(0, 0, 1), 1.5), False)
sketch26.addConstraint([
    Sketcher.Constraint("Diameter", 0, 3.0),
    Sketcher.Constraint("DistanceX", -1, 1, 0, 3, 51.5),
    Sketcher.Constraint("DistanceY", -1, 1, 0, 3, 90.8),
])
pad26 = body17.newObject("PartDesign::Pad", "Pad025")
pad26.Profile = sketch26
pad26.Length = 4.4
doc.recompute()

boolean16 = body.newObject("PartDesign::Boolean", "Boolean015")
boolean16.Type = "Cut"
boolean16.addObjects([body17])

doc.recompute()
